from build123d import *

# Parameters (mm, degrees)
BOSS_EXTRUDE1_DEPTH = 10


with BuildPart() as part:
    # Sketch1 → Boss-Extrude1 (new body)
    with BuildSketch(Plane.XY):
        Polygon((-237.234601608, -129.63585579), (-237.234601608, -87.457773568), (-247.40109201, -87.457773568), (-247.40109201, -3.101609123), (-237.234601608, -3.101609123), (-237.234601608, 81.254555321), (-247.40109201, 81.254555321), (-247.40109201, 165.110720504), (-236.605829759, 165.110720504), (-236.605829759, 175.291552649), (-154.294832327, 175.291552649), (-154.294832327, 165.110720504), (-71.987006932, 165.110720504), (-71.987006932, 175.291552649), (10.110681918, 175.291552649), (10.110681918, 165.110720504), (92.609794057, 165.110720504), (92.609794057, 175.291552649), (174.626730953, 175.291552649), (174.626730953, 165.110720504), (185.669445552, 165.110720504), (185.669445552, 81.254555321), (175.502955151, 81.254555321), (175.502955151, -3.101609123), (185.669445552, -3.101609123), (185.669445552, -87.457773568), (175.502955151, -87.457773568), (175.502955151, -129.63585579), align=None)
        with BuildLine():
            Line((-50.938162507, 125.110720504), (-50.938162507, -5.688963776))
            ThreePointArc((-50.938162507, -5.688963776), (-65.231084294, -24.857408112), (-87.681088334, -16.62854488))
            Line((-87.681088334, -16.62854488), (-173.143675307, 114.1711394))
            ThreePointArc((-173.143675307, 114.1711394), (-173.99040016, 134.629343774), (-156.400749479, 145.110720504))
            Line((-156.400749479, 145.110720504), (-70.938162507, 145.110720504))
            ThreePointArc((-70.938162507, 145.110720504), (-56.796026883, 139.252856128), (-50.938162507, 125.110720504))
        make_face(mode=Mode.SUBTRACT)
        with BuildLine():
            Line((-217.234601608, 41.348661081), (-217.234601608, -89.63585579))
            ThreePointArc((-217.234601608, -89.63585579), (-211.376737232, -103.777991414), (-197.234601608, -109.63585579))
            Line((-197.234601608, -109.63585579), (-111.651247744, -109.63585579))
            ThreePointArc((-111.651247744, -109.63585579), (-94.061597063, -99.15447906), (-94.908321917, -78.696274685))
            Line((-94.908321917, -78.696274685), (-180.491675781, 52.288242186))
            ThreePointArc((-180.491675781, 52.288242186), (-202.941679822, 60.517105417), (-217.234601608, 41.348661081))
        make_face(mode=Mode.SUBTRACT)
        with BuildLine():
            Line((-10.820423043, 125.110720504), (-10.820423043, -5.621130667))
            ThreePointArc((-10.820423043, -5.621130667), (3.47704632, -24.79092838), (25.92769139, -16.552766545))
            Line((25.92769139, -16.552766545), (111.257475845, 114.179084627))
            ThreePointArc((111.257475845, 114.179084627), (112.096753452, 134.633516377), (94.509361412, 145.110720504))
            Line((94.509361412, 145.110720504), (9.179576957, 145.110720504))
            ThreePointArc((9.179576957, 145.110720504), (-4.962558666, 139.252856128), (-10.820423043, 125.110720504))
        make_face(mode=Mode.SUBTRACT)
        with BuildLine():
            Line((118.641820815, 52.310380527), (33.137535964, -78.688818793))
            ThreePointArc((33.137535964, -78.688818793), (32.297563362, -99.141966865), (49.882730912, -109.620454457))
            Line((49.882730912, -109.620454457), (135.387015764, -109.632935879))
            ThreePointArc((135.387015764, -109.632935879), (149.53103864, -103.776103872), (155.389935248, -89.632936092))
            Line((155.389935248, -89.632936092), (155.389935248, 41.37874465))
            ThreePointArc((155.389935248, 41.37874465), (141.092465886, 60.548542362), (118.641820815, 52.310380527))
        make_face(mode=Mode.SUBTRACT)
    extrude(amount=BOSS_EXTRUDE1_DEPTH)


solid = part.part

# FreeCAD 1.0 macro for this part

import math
import FreeCAD as App
import Part
import Sketcher
Q = App.Units.Quantity

doc = App.newDocument("Part")
body = doc.addObject("PartDesign::Body", "Body")

sketch1 = body.newObject("Sketcher::SketchObject", "Sketch")
sketch1.AttachmentSupport = (doc.getObject("XY_Plane"), [""])
sketch1.MapMode = "FlatFace"
sketch1.addGeometry([
    Part.LineSegment(App.Vector(-237, -87, 0), App.Vector(-237, -130, 0)),
    Part.LineSegment(App.Vector(-237, -130, 0), App.Vector(176, -130, 0)),
    Part.LineSegment(App.Vector(176, -130, 0), App.Vector(176, -87, 0)),
    Part.LineSegment(App.Vector(176, -87, 0), App.Vector(186, -87, 0)),
    Part.LineSegment(App.Vector(186, -87, 0), App.Vector(186, -3, 0)),
    Part.LineSegment(App.Vector(186, -3, 0), App.Vector(176, -3, 0)),
    Part.LineSegment(App.Vector(176, -3, 0), App.Vector(176, 81, 0)),
    Part.LineSegment(App.Vector(176, 81, 0), App.Vector(186, 81, 0)),
    Part.LineSegment(App.Vector(186, 81, 0), App.Vector(186, 165, 0)),
    Part.LineSegment(App.Vector(186, 165, 0), App.Vector(175, 165, 0)),
    Part.LineSegment(App.Vector(175, 165, 0), App.Vector(175, 175, 0)),
    Part.LineSegment(App.Vector(175, 175, 0), App.Vector(93, 175, 0)),
    Part.LineSegment(App.Vector(93, 175, 0), App.Vector(93, 165, 0)),
    Part.LineSegment(App.Vector(93, 165, 0), App.Vector(10, 165, 0)),
    Part.LineSegment(App.Vector(10, 165, 0), App.Vector(10, 175, 0)),
    Part.LineSegment(App.Vector(10, 175, 0), App.Vector(-72, 175, 0)),
    Part.LineSegment(App.Vector(-72, 175, 0), App.Vector(-72, 165, 0)),
    Part.LineSegment(App.Vector(-72, 165, 0), App.Vector(-154, 165, 0)),
    Part.LineSegment(App.Vector(-154, 165, 0), App.Vector(-154, 175, 0)),
    Part.LineSegment(App.Vector(-154, 175, 0), App.Vector(-237, 175, 0)),
    Part.LineSegment(App.Vector(-237, 175, 0), App.Vector(-237, 165, 0)),
    Part.LineSegment(App.Vector(-237, 165, 0), App.Vector(-247, 165, 0)),
    Part.LineSegment(App.Vector(-247, 165, 0), App.Vector(-247, 81, 0)),
    Part.LineSegment(App.Vector(-247, 81, 0), App.Vector(-237, 81, 0)),
    Part.LineSegment(App.Vector(-237, 81, 0), App.Vector(-237, -3, 0)),
    Part.LineSegment(App.Vector(-237, -3, 0), App.Vector(-247, -3, 0)),
    Part.LineSegment(App.Vector(-247, -3, 0), App.Vector(-247, -87, 0)),
    Part.LineSegment(App.Vector(-247, -87, 0), App.Vector(-237, -87, 0)),
    Part.ArcOfCircle(Part.Circle(App.Vector(135, 41, 0), App.Vector(0, 0, 1), 20), math.radians(0), math.radians(147)),
    Part.LineSegment(App.Vector(155, 41, 0), App.Vector(155, -90, 0)),
    Part.ArcOfCircle(Part.Circle(App.Vector(135, -90, 0), App.Vector(0, 0, 1), 20), math.radians(-90), math.radians(0)),
    Part.LineSegment(App.Vector(135, -110, 0), App.Vector(50, -110, 0)),
    Part.ArcOfCircle(Part.Circle(App.Vector(50, -90, 0), App.Vector(0, 0, 1), 20), math.radians(147), math.radians(270)),
    Part.LineSegment(App.Vector(33, -79, 0), App.Vector(119, 52, 0)),
    Part.ArcOfCircle(Part.Circle(App.Vector(-197, 41, 0), App.Vector(0, 0, 1), 20), math.radians(33), math.radians(180)),
    Part.LineSegment(App.Vector(-180, 52, 0), App.Vector(-95, -79, 0)),
    Part.ArcOfCircle(Part.Circle(App.Vector(-112, -90, 0), App.Vector(0, 0, 1), 20), math.radians(-90), math.radians(33)),
    Part.LineSegment(App.Vector(-112, -110, 0), App.Vector(-197, -110, 0)),
    Part.ArcOfCircle(Part.Circle(App.Vector(-197, -90, 0), App.Vector(0, 0, 1), 20), math.radians(180), math.radians(270)),
    Part.LineSegment(App.Vector(-217, -90, 0), App.Vector(-217, 41, 0)),
    Part.ArcOfCircle(Part.Circle(App.Vector(9, 125, 0), App.Vector(0, 0, 1), 20), math.radians(90), math.radians(180)),
    Part.LineSegment(App.Vector(9, 145, 0), App.Vector(95, 145, 0)),
    Part.ArcOfCircle(Part.Circle(App.Vector(95, 125, 0), App.Vector(0, 0, 1), 20), math.radians(-33), math.radians(90)),
    Part.LineSegment(App.Vector(111, 114, 0), App.Vector(26, -17, 0)),
    Part.ArcOfCircle(Part.Circle(App.Vector(9, -6, 0), App.Vector(0, 0, 1), 20), math.radians(180), math.radians(327)),
    Part.LineSegment(App.Vector(-11, -6, 0), App.Vector(-11, 125, 0)),
    Part.LineSegment(App.Vector(-51, 125, 0), App.Vector(-51, -6, 0)),
    Part.ArcOfCircle(Part.Circle(App.Vector(-71, -6, 0), App.Vector(0, 0, 1), 20), math.radians(-147), math.radians(0)),
    Part.LineSegment(App.Vector(-88, -17, 0), App.Vector(-173, 114, 0)),
    Part.ArcOfCircle(Part.Circle(App.Vector(-156, 125, 0), App.Vector(0, 0, 1), 20), math.radians(90), math.radians(213)),
    Part.LineSegment(App.Vector(-156, 145, 0), App.Vector(-71, 145, 0)),
    Part.ArcOfCircle(Part.Circle(App.Vector(-71, 125, 0), App.Vector(0, 0, 1), 20), math.radians(0), math.radians(90)),
], False)
sketch1.addConstraint([
    Sketcher.Constraint("Coincident", 0, 2, 1, 1),
    Sketcher.Constraint("Coincident", 1, 2, 2, 1),
    Sketcher.Constraint("Coincident", 2, 2, 3, 1),
    Sketcher.Constraint("Coincident", 3, 2, 4, 1),
    Sketcher.Constraint("Coincident", 4, 2, 5, 1),
    Sketcher.Constraint("Coincident", 5, 2, 6, 1),
    Sketcher.Constraint("Coincident", 6, 2, 7, 1),
    Sketcher.Constraint("Coincident", 7, 2, 8, 1),
    Sketcher.Constraint("Coincident", 8, 2, 9, 1),
    Sketcher.Constraint("Coincident", 9, 2, 10, 1),
    Sketcher.Constraint("Coincident", 10, 2, 11, 1),
    Sketcher.Constraint("Coincident", 11, 2, 12, 1),
    Sketcher.Constraint("Coincident", 12, 2, 13, 1),
    Sketcher.Constraint("Coincident", 13, 2, 14, 1),
    Sketcher.Constraint("Coincident", 14, 2, 15, 1),
    Sketcher.Constraint("Coincident", 15, 2, 16, 1),
    Sketcher.Constraint("Coincident", 16, 2, 17, 1),
    Sketcher.Constraint("Coincident", 17, 2, 18, 1),
    Sketcher.Constraint("Coincident", 18, 2, 19, 1),
    Sketcher.Constraint("Coincident", 19, 2, 20, 1),
    Sketcher.Constraint("Coincident", 20, 2, 21, 1),
    Sketcher.Constraint("Coincident", 21, 2, 22, 1),
    Sketcher.Constraint("Coincident", 22, 2, 23, 1),
    Sketcher.Constraint("Coincident", 23, 2, 24, 1),
    Sketcher.Constraint("Coincident", 24, 2, 25, 1),
    Sketcher.Constraint("Coincident", 25, 2, 26, 1),
    Sketcher.Constraint("Coincident", 26, 2, 27, 1),
    Sketcher.Constraint("Coincident", 27, 2, 0, 1),
    Sketcher.Constraint("Tangent", 28, 1, 29, 1),
    Sketcher.Constraint("Tangent", 29, 2, 30, 2),
    Sketcher.Constraint("Tangent", 30, 1, 31, 1),
    Sketcher.Constraint("Tangent", 31, 2, 32, 2),
    Sketcher.Constraint("Tangent", 32, 1, 33, 1),
    Sketcher.Constraint("Tangent", 33, 2, 28, 2),
    Sketcher.Constraint("Tangent", 34, 1, 35, 1),
    Sketcher.Constraint("Tangent", 35, 2, 36, 2),
    Sketcher.Constraint("Tangent", 36, 1, 37, 1),
    Sketcher.Constraint("Tangent", 37, 2, 38, 2),
    Sketcher.Constraint("Tangent", 38, 1, 39, 1),
    Sketcher.Constraint("Tangent", 39, 2, 34, 2),
    Sketcher.Constraint("Tangent", 40, 1, 41, 1),
    Sketcher.Constraint("Tangent", 41, 2, 42, 2),
    Sketcher.Constraint("Tangent", 42, 1, 43, 1),
    Sketcher.Constraint("Tangent", 43, 2, 44, 2),
    Sketcher.Constraint("Tangent", 44, 1, 45, 1),
    Sketcher.Constraint("Tangent", 45, 2, 40, 2),
    Sketcher.Constraint("Tangent", 46, 2, 47, 2),
    Sketcher.Constraint("Tangent", 47, 1, 48, 1),
    Sketcher.Constraint("Tangent", 48, 2, 49, 2),
    Sketcher.Constraint("Tangent", 49, 1, 50, 1),
    Sketcher.Constraint("Tangent", 50, 2, 51, 2),
    Sketcher.Constraint("Tangent", 51, 1, 46, 1),
    Sketcher.Constraint("Vertical", 0),
    Sketcher.Constraint("Horizontal", 1),
    Sketcher.Constraint("Vertical", 2),
    Sketcher.Constraint("Horizontal", 3),
    Sketcher.Constraint("Vertical", 4),
    Sketcher.Constraint("Horizontal", 5),
    Sketcher.Constraint("Vertical", 6),
    Sketcher.Constraint("Horizontal", 7),
    Sketcher.Constraint("Vertical", 8),
    Sketcher.Constraint("Horizontal", 9),
    Sketcher.Constraint("Vertical", 10),
    Sketcher.Constraint("Horizontal", 11),
    Sketcher.Constraint("Vertical", 12),
    Sketcher.Constraint("Horizontal", 13),
    Sketcher.Constraint("Vertical", 14),
    Sketcher.Constraint("Horizontal", 15),
    Sketcher.Constraint("Vertical", 16),
    Sketcher.Constraint("Horizontal", 17),
    Sketcher.Constraint("Vertical", 18),
    Sketcher.Constraint("Horizontal", 19),
    Sketcher.Constraint("Vertical", 20),
    Sketcher.Constraint("Horizontal", 21),
    Sketcher.Constraint("Vertical", 22),
    Sketcher.Constraint("Horizontal", 23),
    Sketcher.Constraint("Vertical", 24),
    Sketcher.Constraint("Horizontal", 25),
    Sketcher.Constraint("Vertical", 26),
    Sketcher.Constraint("Horizontal", 27),
    Sketcher.Constraint("Vertical", 29),
    Sketcher.Constraint("Horizontal", 37),
    Sketcher.Constraint("Vertical", 39),
    Sketcher.Constraint("Horizontal", 41),
    Sketcher.Constraint("Vertical", 45),
    Sketcher.Constraint("Vertical", 46),
    Sketcher.Constraint("Horizontal", 50),
    Sketcher.Constraint("Equal", 28, 30),
    Sketcher.Constraint("Equal", 30, 32),
    Sketcher.Constraint("Equal", 32, 34),
    Sketcher.Constraint("Equal", 34, 36),
    Sketcher.Constraint("Equal", 36, 38),
    Sketcher.Constraint("Equal", 38, 40),
    Sketcher.Constraint("Equal", 40, 42),
    Sketcher.Constraint("Equal", 42, 44),
    Sketcher.Constraint("Equal", 44, 47),
    Sketcher.Constraint("Equal", 47, 49),
    Sketcher.Constraint("Equal", 49, 51),
    Sketcher.Constraint("Parallel", 33, 43),
    Sketcher.Constraint("Parallel", 35, 48),
    Sketcher.Constraint("Horizontal", 42, 3, 49, 3),
    Sketcher.Constraint("Horizontal", 9, 2, 12, 2),
    Sketcher.Constraint("Horizontal", 11, 2, 14, 2),
    Sketcher.Constraint("Horizontal", 13, 2, 16, 2),
    Sketcher.Constraint("Horizontal", 15, 2, 18, 2),
    Sketcher.Constraint("Horizontal", 17, 2, 20, 2),
    Sketcher.Constraint("Horizontal", 7, 2, 22, 2),
    Sketcher.Constraint("Horizontal", 5, 2, 24, 2),
    Sketcher.Constraint("Horizontal", 3, 2, 26, 2),
    Sketcher.Constraint("Vertical", 2, 2, 5, 2),
    Sketcher.Constraint("Vertical", 4, 2, 7, 2),
    Sketcher.Constraint("Vertical", 0, 2, 23, 2),
    Sketcher.Constraint("Vertical", 22, 2, 25, 2),
    Sketcher.Constraint("Equal", 7, 23),
    Sketcher.Constraint("Equal", 4, 6),
    Sketcher.Constraint("Radius", 28, Q("20 mm")),
    Sketcher.Constraint("Angle", 35, Q("-56.839991 deg")),
    Sketcher.Constraint("DistanceX", 3, 1, 3, 2, Q("10.16649 mm")),
    Sketcher.Constraint("DistanceX", 15, 2, 15, 1, Q("82.097689 mm")),
    Sketcher.Constraint("DistanceY", 29, 2, 29, 1, Q("131.011681 mm")),
    Sketcher.Constraint("DistanceY", 45, 1, 45, 2, Q("130.731851 mm")),
    Sketcher.Constraint("DistanceX", 34, 3, -1, 1, Q("197.234602 mm")),
    Sketcher.Constraint("DistanceX", 0, 2, -1, 1, Q("237.234602 mm")),
    Sketcher.Constraint("DistanceX", 1, 1, 1, 2, Q("412.737557 mm")),
    Sketcher.Constraint("DistanceX", 9, 2, 9, 1, Q("11.042715 mm")),
    Sketcher.Constraint("DistanceX", 11, 2, 11, 1, Q("82.016937 mm")),
    Sketcher.Constraint("DistanceX", 13, 2, 13, 1, Q("82.499112 mm")),
    Sketcher.Constraint("DistanceX", 17, 2, 17, 1, Q("82.307825 mm")),
    Sketcher.Constraint("DistanceX", 19, 2, 19, 1, Q("82.310997 mm")),
    Sketcher.Constraint("DistanceX", 37, 2, 37, 1, Q("85.583354 mm")),
    Sketcher.Constraint("DistanceX", 41, 1, 41, 2, Q("85.329784 mm")),
    Sketcher.Constraint("DistanceX", 50, 1, 50, 2, Q("85.462587 mm")),
    Sketcher.Constraint("DistanceY", 0, 2, 0, 1, Q("42.178082 mm")),
    Sketcher.Constraint("DistanceY", 4, 1, 4, 2, Q("84.356164 mm")),
    Sketcher.Constraint("DistanceY", 8, 1, 8, 2, Q("83.856165 mm")),
    Sketcher.Constraint("DistanceY", 10, 1, 10, 2, Q("10.180832 mm")),
    Sketcher.Constraint("DistanceX", -1, 1, 32, 3, Q("49.88565 mm")),
    Sketcher.Constraint("DistanceY", -1, 1, 34, 3, Q("41.348661 mm")),
    Sketcher.Constraint("DistanceY", -1, 1, 40, 3, Q("125.110721 mm")),
    Sketcher.Constraint("DistanceX", -1, 1, 42, 3, Q("94.509361 mm")),
    Sketcher.Constraint("DistanceX", 49, 3, -1, 1, Q("156.400749 mm")),
    Sketcher.Constraint("DistanceY", 4, 2, -1, 1, Q("3.101609 mm")),
    Sketcher.Constraint("DistanceX", -1, 1, 31, 2, Q("49.882731 mm")),
    Sketcher.Constraint("DistanceY", 32, 1, -1, 1, Q("78.688819 mm")),
])
pad1 = body.newObject("PartDesign::Pad", "Pad")
pad1.Profile = sketch1
pad1.Length = 10

doc.recompute()
